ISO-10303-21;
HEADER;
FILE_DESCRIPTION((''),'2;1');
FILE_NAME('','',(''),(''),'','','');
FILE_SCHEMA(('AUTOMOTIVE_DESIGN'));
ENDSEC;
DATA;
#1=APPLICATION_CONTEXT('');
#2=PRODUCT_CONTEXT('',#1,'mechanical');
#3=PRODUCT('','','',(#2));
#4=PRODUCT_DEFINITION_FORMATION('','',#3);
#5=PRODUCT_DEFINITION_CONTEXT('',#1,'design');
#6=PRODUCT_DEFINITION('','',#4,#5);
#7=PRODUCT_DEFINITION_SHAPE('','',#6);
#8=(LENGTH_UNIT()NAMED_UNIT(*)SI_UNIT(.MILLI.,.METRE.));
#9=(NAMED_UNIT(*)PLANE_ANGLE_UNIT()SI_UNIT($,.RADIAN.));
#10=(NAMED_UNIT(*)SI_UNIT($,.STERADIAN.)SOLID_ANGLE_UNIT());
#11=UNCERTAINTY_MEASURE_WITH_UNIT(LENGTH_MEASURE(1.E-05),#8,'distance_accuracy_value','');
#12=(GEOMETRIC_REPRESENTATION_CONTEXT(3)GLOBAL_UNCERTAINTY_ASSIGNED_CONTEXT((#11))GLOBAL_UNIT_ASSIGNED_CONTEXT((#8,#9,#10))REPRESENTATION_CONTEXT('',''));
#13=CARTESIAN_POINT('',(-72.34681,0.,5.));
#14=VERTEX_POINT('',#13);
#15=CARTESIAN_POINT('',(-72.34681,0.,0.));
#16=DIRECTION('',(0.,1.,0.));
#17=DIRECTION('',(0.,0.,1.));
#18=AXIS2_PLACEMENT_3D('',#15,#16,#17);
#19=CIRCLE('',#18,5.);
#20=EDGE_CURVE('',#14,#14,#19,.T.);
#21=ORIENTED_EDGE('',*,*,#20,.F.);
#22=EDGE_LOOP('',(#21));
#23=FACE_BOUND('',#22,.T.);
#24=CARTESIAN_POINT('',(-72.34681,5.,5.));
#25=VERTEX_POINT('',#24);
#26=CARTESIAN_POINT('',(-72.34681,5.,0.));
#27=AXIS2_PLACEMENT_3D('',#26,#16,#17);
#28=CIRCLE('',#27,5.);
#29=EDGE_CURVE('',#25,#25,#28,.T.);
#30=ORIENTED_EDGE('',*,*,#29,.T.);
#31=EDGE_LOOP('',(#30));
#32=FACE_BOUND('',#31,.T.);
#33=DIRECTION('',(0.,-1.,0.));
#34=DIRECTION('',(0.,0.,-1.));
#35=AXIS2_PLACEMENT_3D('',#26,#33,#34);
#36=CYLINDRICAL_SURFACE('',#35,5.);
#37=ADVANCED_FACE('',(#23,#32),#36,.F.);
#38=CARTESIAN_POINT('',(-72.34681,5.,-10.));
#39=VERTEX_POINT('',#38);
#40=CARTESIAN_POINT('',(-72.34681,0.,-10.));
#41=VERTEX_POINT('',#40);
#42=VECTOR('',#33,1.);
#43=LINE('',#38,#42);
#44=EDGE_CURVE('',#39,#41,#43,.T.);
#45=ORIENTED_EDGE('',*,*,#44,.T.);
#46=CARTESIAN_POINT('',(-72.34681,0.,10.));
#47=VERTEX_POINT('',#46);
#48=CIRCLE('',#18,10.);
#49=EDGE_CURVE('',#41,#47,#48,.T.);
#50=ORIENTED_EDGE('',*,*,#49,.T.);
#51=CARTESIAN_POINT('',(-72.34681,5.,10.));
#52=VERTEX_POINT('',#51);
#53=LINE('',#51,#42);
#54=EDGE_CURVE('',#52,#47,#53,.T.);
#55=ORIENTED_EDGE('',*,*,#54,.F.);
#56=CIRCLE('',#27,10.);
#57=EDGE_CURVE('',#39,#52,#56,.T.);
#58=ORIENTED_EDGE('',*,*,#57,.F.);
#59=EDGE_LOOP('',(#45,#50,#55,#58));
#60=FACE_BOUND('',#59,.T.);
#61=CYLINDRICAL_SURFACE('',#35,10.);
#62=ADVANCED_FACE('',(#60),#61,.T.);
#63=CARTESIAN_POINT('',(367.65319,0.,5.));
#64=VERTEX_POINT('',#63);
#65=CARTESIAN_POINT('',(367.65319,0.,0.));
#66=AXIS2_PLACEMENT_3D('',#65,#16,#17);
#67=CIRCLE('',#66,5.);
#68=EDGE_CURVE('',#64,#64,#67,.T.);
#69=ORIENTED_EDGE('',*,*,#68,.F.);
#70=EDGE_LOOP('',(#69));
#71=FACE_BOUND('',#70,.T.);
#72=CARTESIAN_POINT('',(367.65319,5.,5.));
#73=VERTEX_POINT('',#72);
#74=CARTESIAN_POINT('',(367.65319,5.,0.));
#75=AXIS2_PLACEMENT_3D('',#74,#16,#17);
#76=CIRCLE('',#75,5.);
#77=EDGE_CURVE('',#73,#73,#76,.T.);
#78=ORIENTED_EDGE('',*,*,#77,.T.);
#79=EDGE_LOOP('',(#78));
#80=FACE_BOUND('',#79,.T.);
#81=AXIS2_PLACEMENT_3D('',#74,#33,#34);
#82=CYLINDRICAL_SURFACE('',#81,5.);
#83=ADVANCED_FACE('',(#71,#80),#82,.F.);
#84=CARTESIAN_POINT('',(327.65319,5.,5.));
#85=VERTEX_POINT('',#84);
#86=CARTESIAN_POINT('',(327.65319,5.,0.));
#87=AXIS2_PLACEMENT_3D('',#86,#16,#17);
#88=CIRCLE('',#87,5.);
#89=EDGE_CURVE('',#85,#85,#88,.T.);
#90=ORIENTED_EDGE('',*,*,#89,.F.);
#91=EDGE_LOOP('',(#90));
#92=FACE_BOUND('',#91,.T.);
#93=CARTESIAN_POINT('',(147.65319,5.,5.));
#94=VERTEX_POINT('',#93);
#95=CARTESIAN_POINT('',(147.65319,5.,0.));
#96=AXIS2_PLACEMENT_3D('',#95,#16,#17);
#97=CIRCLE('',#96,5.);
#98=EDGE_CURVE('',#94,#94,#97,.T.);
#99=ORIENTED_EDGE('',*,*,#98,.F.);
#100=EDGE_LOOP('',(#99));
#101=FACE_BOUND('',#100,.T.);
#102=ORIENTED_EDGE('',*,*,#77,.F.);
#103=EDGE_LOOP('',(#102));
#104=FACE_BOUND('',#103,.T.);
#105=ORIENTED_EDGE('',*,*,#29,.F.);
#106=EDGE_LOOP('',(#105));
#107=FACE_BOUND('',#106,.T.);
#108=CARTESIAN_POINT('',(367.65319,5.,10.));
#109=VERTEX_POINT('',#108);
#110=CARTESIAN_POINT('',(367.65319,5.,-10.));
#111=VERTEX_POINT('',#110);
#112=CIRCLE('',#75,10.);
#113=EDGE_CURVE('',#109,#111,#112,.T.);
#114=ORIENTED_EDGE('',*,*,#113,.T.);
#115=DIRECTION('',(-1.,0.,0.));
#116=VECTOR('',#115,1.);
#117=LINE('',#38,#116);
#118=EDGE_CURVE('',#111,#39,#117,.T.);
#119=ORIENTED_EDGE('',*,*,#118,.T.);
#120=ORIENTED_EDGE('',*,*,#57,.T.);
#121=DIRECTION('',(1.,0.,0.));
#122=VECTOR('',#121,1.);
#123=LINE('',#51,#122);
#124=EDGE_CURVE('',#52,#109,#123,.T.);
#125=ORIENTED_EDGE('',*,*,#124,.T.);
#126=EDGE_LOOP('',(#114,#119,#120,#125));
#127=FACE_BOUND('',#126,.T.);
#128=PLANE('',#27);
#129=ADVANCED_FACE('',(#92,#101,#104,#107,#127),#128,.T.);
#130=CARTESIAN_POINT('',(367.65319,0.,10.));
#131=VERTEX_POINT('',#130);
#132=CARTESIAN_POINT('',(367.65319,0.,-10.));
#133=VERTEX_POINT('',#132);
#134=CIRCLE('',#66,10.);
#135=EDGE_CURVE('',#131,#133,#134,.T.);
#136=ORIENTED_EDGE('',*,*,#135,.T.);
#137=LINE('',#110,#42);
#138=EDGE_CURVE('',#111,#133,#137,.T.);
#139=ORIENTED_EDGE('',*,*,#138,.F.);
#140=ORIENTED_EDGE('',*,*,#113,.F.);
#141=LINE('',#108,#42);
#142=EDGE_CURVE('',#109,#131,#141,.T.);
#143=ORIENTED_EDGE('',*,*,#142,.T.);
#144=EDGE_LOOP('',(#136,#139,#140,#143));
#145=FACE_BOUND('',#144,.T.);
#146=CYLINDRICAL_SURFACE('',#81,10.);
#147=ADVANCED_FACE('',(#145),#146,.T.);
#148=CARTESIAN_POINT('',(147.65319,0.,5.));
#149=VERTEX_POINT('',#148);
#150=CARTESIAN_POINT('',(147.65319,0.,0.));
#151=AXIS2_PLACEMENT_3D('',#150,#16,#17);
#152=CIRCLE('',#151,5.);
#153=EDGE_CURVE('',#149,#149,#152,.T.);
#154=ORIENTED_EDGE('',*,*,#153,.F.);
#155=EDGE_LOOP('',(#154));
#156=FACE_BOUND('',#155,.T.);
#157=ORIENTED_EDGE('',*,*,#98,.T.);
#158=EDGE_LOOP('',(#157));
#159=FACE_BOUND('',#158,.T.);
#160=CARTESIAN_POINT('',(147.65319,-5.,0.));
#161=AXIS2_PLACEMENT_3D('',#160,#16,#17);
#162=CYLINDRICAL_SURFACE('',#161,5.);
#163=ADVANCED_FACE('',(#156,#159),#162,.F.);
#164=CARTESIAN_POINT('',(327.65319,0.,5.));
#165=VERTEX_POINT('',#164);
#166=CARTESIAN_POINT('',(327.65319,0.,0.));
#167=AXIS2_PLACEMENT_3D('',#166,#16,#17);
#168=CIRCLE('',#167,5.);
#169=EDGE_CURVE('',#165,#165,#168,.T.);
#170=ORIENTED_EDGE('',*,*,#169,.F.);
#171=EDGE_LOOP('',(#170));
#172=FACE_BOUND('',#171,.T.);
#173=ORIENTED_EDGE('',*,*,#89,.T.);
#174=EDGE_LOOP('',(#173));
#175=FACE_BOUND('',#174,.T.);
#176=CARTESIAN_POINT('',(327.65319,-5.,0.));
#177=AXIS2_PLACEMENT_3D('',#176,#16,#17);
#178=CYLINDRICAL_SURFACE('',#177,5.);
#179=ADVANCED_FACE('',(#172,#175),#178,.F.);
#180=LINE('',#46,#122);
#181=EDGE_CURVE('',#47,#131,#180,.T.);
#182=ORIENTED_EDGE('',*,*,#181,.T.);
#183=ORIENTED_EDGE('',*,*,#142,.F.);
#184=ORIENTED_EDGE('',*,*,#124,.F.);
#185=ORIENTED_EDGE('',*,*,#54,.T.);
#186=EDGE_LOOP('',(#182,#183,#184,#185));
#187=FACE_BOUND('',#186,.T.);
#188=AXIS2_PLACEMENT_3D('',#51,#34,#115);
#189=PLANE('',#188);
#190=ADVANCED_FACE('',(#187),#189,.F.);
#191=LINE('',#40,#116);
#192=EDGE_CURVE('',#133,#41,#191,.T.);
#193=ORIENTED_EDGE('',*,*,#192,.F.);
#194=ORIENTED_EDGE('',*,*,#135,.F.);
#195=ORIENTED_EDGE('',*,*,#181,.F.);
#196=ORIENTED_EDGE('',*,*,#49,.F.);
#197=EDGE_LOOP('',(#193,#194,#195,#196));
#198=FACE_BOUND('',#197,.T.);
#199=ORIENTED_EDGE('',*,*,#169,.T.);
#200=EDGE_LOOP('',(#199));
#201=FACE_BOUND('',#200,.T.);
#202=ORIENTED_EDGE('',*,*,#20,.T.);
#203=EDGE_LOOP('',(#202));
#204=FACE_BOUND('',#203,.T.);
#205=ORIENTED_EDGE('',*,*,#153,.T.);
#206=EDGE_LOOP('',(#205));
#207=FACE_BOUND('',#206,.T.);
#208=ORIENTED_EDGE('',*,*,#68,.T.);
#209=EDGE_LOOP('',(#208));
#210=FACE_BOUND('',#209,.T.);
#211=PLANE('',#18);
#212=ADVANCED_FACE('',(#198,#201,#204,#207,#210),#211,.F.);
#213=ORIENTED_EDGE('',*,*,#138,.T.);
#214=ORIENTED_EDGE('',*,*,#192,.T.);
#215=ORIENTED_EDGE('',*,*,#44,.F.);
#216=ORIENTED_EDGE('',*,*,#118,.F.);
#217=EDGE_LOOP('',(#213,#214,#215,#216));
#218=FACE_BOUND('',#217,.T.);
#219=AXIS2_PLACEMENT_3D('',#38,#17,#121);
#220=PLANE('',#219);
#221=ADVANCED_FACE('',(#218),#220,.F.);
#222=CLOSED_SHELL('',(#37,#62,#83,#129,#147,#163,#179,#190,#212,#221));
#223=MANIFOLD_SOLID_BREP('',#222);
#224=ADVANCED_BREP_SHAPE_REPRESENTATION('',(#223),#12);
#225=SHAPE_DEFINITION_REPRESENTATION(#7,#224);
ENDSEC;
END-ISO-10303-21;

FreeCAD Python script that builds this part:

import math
import FreeCAD as App
import Part
import Sketcher

V = App.Vector

doc = App.newDocument("Part")
body = doc.addObject("PartDesign::Body", "Body")

sketch1 = body.newObject("Sketcher::SketchObject", "Sketch")
sketch1.AttachmentSupport = (doc.getObject("XZ_Plane"), [""])
sketch1.MapMode = "FlatFace"
sketch1.addGeometry([
    Part.LineSegment(V(368, -10, 0), V(-72, -10, 0)),
    Part.ArcOfCircle(Part.Circle(V(-72, 0, 0), V(0, 0, 1), 10), math.radians(90), math.radians(270)),
    Part.LineSegment(V(-72, 10, 0), V(368, 10, 0)),
    Part.ArcOfCircle(Part.Circle(V(368, 0, 0), V(0, 0, 1), 10), math.radians(-90), math.radians(90)),
    Part.Circle(V(368, 0, 0), V(0, 0, 1), 5),
    Part.Circle(V(-72, 0, 0), V(0, 0, 1), 5),
], False)
sketch1.addConstraint([
    Sketcher.Constraint("Tangent", 0, 2, 1, 2),
    Sketcher.Constraint("Tangent", 1, 1, 2, 1),
    Sketcher.Constraint("Tangent", 2, 2, 3, 2),
    Sketcher.Constraint("Tangent", 3, 1, 0, 1),
    Sketcher.Constraint("Horizontal", 0),
    Sketcher.Constraint("Horizontal", 2),
    Sketcher.Constraint("Coincident", 4, 3, 3, 3),
    Sketcher.Constraint("Coincident", 5, 3, 1, 3),
    Sketcher.Constraint("Equal", 4, 5),
    Sketcher.Constraint("PointOnObject", 1, 3, -1),
    Sketcher.Constraint("Diameter", 4, 10.0),
    Sketcher.Constraint("Radius", 1, 10.0),
    Sketcher.Constraint("DistanceX", 0, 2, 0, 1, 440.0),
    Sketcher.Constraint("DistanceX", 1, 3, -1, 1, 72.34681),
])
pad1 = body.newObject("PartDesign::Pad", "Pad")
pad1.Profile = sketch1
pad1.Length = 5
pad1.Reversed = True

sketch2 = body.newObject("Sketcher::SketchObject", "Sketch001")
sketch2.AttachmentSupport = (doc.getObject("XZ_Plane"), [""])
sketch2.MapMode = "FlatFace"
sketch2.AttachmentOffset = App.Placement(V(0, 0, -5), App.Rotation())
sketch2.addGeometry([
    Part.Circle(V(328, 0, 0), V(0, 0, 1), 5),
    Part.Circle(V(148, 0, 0), V(0, 0, 1), 5),
], False)
sketch2.addConstraint([
    Sketcher.Constraint("Equal", 0, 1),
    Sketcher.Constraint("PointOnObject", 0, 3, -1),
    Sketcher.Constraint("PointOnObject", 1, 3, -1),
    Sketcher.Constraint("Diameter", 0, 10.0),
    Sketcher.Constraint("DistanceX", 1, 3, 0, 3, 180.0),
    Sketcher.Constraint("DistanceX", -1, 1, 0, 3, 327.65319),
])
pocket1 = body.newObject("PartDesign::Pocket", "Pocket")
pocket1.Profile = sketch2
pocket1.Length = 10
pocket1.Reversed = True

doc.recompute()
